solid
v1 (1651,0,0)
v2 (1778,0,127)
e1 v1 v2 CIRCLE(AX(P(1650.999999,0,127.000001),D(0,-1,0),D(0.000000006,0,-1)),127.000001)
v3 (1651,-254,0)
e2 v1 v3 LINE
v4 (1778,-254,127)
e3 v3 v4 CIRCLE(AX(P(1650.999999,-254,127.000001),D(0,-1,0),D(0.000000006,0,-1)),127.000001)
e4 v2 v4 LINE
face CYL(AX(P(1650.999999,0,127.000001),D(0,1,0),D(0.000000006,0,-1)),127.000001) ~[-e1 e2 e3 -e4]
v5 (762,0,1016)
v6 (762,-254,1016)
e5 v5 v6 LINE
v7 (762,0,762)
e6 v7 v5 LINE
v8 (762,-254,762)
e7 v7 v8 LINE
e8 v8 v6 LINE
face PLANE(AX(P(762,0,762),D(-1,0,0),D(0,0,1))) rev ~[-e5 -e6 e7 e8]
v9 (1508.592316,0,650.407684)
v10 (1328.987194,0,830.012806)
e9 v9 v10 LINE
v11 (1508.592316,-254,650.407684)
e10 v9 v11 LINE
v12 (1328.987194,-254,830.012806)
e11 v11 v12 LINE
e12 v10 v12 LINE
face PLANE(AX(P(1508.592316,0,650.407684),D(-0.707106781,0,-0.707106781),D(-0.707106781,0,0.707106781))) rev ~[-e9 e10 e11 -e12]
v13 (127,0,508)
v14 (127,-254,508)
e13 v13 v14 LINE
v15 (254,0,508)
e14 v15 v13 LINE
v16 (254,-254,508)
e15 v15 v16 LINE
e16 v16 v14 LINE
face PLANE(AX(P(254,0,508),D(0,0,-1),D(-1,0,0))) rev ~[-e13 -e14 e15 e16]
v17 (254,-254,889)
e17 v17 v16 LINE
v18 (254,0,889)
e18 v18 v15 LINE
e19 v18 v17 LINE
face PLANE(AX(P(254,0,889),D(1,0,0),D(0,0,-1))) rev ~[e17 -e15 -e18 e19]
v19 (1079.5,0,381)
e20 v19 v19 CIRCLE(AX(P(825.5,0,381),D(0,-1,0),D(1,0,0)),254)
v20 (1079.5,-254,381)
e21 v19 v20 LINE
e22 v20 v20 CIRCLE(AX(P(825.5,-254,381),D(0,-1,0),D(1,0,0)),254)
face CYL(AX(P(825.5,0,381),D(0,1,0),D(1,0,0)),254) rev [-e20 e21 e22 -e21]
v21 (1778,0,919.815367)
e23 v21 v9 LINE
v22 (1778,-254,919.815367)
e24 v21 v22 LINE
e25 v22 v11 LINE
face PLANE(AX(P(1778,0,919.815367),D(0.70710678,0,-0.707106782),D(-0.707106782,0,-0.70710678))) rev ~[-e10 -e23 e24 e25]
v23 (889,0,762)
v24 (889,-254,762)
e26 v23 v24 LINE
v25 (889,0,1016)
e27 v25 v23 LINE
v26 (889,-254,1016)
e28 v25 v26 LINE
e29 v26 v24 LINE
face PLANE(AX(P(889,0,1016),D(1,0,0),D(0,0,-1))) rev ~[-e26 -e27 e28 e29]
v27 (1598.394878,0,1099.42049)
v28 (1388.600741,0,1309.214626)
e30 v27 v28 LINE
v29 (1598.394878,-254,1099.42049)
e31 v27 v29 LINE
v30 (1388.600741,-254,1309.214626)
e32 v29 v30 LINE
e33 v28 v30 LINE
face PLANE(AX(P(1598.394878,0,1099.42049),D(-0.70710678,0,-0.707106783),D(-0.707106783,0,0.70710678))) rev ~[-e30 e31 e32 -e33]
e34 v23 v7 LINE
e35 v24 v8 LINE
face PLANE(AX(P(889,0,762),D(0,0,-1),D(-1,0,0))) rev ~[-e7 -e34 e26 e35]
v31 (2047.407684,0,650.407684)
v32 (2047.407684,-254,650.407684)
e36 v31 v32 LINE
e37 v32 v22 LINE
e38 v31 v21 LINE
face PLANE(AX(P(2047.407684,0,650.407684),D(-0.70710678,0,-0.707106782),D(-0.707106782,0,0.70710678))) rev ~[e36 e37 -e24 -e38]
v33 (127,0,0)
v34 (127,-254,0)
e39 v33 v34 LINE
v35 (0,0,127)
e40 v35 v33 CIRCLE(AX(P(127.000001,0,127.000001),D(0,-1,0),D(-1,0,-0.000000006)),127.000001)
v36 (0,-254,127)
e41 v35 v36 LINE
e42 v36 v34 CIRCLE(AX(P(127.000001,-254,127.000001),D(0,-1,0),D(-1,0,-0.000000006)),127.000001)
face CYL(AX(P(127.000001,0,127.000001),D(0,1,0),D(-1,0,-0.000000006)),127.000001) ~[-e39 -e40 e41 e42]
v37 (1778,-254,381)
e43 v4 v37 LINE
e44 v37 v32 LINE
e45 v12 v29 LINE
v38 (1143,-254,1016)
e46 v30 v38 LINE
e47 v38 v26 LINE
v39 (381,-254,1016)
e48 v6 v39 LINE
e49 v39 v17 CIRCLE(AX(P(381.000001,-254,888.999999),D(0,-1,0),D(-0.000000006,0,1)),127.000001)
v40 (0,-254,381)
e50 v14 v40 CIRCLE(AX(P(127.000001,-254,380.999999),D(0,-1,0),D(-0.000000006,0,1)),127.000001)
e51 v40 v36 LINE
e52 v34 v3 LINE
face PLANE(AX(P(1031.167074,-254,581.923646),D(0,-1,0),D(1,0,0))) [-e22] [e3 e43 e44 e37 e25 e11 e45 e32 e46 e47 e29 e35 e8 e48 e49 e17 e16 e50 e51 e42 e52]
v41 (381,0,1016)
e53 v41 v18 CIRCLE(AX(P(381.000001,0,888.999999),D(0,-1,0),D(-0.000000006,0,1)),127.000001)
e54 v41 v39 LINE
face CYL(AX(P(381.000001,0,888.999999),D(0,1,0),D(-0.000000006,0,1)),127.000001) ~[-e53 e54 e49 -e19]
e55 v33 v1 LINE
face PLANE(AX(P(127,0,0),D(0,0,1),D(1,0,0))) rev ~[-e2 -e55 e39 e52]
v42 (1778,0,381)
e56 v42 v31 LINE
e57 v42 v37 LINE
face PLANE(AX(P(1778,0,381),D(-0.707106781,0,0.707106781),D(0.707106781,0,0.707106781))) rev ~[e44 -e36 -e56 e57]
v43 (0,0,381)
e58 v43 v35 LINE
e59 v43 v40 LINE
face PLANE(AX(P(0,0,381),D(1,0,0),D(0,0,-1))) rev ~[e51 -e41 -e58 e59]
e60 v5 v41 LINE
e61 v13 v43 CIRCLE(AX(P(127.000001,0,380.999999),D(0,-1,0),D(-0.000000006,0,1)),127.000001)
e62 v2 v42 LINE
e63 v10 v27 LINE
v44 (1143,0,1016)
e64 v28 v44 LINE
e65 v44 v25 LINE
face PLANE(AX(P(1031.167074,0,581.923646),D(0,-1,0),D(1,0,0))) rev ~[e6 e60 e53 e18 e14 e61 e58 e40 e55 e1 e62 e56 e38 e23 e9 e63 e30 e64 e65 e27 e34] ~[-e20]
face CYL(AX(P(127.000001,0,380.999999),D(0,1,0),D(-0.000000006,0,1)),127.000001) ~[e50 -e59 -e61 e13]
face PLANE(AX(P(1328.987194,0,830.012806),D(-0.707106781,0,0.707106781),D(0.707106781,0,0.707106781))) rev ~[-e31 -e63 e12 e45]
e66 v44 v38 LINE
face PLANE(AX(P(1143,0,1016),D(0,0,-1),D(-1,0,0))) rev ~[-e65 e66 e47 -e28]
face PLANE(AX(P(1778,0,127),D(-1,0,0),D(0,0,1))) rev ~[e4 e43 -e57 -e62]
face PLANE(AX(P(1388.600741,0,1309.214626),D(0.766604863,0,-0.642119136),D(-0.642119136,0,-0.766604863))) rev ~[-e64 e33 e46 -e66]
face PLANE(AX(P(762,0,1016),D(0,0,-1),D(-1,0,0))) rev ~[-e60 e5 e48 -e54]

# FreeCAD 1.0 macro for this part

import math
import FreeCAD as App
import Part
import Sketcher
from FreeCAD import Vector
Q = App.Units.Quantity

doc = App.newDocument("Part")
body = doc.addObject("PartDesign::Body", "Body")

sketch1 = body.newObject("Sketcher::SketchObject", "Sketch")
sketch1.AttachmentSupport = (doc.getObject("XZ_Plane"), [""])
sketch1.MapMode = "FlatFace"
sketch1.addGeometry([
    Part.ArcOfCircle(Part.Circle(Vector(127.000001, 127.000001, 0), Vector(0, 0, 1), 127.000001), math.radians(-180), math.radians(-90)),
    Part.LineSegment(Vector(127, 0, 0), Vector(1651, 0, 0)),
    Part.ArcOfCircle(Part.Circle(Vector(1650.999999, 127.000001, 0), Vector(0, 0, 1), 127.000001), math.radians(-90), math.radians(0)),
    Part.LineSegment(Vector(1778, 127, 0), Vector(1778, 381, 0)),
    Part.LineSegment(Vector(1778, 381, 0), Vector(2047.407684, 650.407684, 0)),
    Part.LineSegment(Vector(2047.407684, 650.407684, 0), Vector(1778, 919.815367, 0)),
    Part.LineSegment(Vector(1778, 919.815367, 0), Vector(1508.592316, 650.407684, 0)),
    Part.LineSegment(Vector(1508.592316, 650.407684, 0), Vector(1328.987194, 830.012806, 0)),
    Part.LineSegment(Vector(1328.987194, 830.012806, 0), Vector(1598.394878, 1099.42049, 0)),
    Part.LineSegment(Vector(1598.394878, 1099.42049, 0), Vector(1388.600741, 1309.214626, 0)),
    Part.LineSegment(Vector(1388.600741, 1309.214626, 0), Vector(1143, 1016, 0)),
    Part.LineSegment(Vector(1143, 1016, 0), Vector(889, 1016, 0)),
    Part.LineSegment(Vector(889, 1016, 0), Vector(889, 762, 0)),
    Part.LineSegment(Vector(889, 762, 0), Vector(762, 762, 0)),
    Part.LineSegment(Vector(762, 762, 0), Vector(762, 1016, 0)),
    Part.LineSegment(Vector(762, 1016, 0), Vector(381, 1016, 0)),
    Part.ArcOfCircle(Part.Circle(Vector(381.000001, 888.999999, 0), Vector(0, 0, 1), 127.000001), math.radians(90), math.radians(180)),
    Part.LineSegment(Vector(254, 889, 0), Vector(254, 508, 0)),
    Part.LineSegment(Vector(254, 508, 0), Vector(127, 508, 0)),
    Part.ArcOfCircle(Part.Circle(Vector(127.000001, 380.999999, 0), Vector(0, 0, 1), 127.000001), math.radians(90), math.radians(180)),
    Part.LineSegment(Vector(0, 381, 0), Vector(0, 127, 0)),
    Part.Circle(Vector(825.5, 381, 0), Vector(0, 0, 1), 254),
], False)
sketch1.addConstraint([
    Sketcher.Constraint("Tangent", 0, 2, 1, 1),
    Sketcher.Constraint("Tangent", 1, 2, 2, 1),
    Sketcher.Constraint("Tangent", 2, 2, 3, 1),
    Sketcher.Constraint("Coincident", 3, 2, 4, 1),
    Sketcher.Constraint("Coincident", 4, 2, 5, 1),
    Sketcher.Constraint("Coincident", 5, 2, 6, 1),
    Sketcher.Constraint("Coincident", 6, 2, 7, 1),
    Sketcher.Constraint("Coincident", 7, 2, 8, 1),
    Sketcher.Constraint("Coincident", 8, 2, 9, 1),
    Sketcher.Constraint("Coincident", 9, 2, 10, 1),
    Sketcher.Constraint("Coincident", 10, 2, 11, 1),
    Sketcher.Constraint("Coincident", 11, 2, 12, 1),
    Sketcher.Constraint("Coincident", 12, 2, 13, 1),
    Sketcher.Constraint("Coincident", 13, 2, 14, 1),
    Sketcher.Constraint("Coincident", 14, 2, 15, 1),
    Sketcher.Constraint("Tangent", 15, 2, 16, 1),
    Sketcher.Constraint("Tangent", 16, 2, 17, 1),
    Sketcher.Constraint("Coincident", 17, 2, 18, 1),
    Sketcher.Constraint("Tangent", 18, 2, 19, 1),
    Sketcher.Constraint("Tangent", 19, 2, 20, 1),
    Sketcher.Constraint("Tangent", 20, 2, 0, 1),
    Sketcher.Constraint("Horizontal", 1),
    Sketcher.Constraint("Vertical", 3),
    Sketcher.Constraint("Horizontal", 11),
    Sketcher.Constraint("Vertical", 12),
    Sketcher.Constraint("Horizontal", 13),
    Sketcher.Constraint("Vertical", 14),
    Sketcher.Constraint("Horizontal", 15),
    Sketcher.Constraint("Vertical", 17),
    Sketcher.Constraint("Horizontal", 18),
    Sketcher.Constraint("Vertical", 20),
    Sketcher.Constraint("Equal", 0, 2),
    Sketcher.Constraint("Equal", 2, 16),
    Sketcher.Constraint("Equal", 16, 19),
    Sketcher.Constraint("PointOnObject", 0, 2, -1),
    Sketcher.Constraint("PointOnObject", 19, 2, -2),
    Sketcher.Constraint("Perpendicular", 4, 5),
    Sketcher.Constraint("Perpendicular", 5, 6),
    Sketcher.Constraint("Perpendicular", 6, 7),
    Sketcher.Constraint("Perpendicular", 7, 8),
    Sketcher.Constraint("Perpendicular", 8, 9),
    Sketcher.Constraint("Horizontal", 19, 3, 21, 3),
    Sketcher.Constraint("Horizontal", 21, 3, 3, 2),
    Sketcher.Constraint("Horizontal", 4, 2, 6, 2),
    Sketcher.Constraint("Horizontal", 11, 2, 14, 2),
    Sketcher.Constraint("Vertical", 3, 2, 5, 2),
    Sketcher.Constraint("Equal", 13, 18),
    Sketcher.Constraint("Equal", 11, 3),
    Sketcher.Constraint("Equal", 3, 12),
    Sketcher.Constraint("Equal", 15, 17),
    Sketcher.Constraint("Equal", 4, 5),
    Sketcher.Constraint("Equal", 6, 8),
    Sketcher.Constraint("Diameter", 21, Q("20 in")),
    Sketcher.Constraint("Radius", 0, Q("5 in")),
    Sketcher.Constraint("DistanceX", 1, 1, 1, 2, Q("60 in")),
    Sketcher.Constraint("DistanceX", 11, 2, 11, 1, Q("10 in")),
    Sketcher.Constraint("DistanceX", 13, 2, 13, 1, Q("5 in")),
    Sketcher.Constraint("DistanceX", 15, 2, 15, 1, Q("15 in")),
    Sketcher.Constraint("Distance", 4, Q("15 in")),
    Sketcher.Constraint("Distance", 7, Q("10 in")),
    Sketcher.Constraint("DistanceX", -1, 1, 21, 3, Q("32.5 in")),
    Sketcher.Constraint("DistanceX", -1, 1, 9, 2, Q("1388.600741 mm")),
])
pad1 = body.newObject("PartDesign::Pad", "Pad")
pad1.Profile = sketch1
pad1.Length = Q("10 in")

doc.recompute()
